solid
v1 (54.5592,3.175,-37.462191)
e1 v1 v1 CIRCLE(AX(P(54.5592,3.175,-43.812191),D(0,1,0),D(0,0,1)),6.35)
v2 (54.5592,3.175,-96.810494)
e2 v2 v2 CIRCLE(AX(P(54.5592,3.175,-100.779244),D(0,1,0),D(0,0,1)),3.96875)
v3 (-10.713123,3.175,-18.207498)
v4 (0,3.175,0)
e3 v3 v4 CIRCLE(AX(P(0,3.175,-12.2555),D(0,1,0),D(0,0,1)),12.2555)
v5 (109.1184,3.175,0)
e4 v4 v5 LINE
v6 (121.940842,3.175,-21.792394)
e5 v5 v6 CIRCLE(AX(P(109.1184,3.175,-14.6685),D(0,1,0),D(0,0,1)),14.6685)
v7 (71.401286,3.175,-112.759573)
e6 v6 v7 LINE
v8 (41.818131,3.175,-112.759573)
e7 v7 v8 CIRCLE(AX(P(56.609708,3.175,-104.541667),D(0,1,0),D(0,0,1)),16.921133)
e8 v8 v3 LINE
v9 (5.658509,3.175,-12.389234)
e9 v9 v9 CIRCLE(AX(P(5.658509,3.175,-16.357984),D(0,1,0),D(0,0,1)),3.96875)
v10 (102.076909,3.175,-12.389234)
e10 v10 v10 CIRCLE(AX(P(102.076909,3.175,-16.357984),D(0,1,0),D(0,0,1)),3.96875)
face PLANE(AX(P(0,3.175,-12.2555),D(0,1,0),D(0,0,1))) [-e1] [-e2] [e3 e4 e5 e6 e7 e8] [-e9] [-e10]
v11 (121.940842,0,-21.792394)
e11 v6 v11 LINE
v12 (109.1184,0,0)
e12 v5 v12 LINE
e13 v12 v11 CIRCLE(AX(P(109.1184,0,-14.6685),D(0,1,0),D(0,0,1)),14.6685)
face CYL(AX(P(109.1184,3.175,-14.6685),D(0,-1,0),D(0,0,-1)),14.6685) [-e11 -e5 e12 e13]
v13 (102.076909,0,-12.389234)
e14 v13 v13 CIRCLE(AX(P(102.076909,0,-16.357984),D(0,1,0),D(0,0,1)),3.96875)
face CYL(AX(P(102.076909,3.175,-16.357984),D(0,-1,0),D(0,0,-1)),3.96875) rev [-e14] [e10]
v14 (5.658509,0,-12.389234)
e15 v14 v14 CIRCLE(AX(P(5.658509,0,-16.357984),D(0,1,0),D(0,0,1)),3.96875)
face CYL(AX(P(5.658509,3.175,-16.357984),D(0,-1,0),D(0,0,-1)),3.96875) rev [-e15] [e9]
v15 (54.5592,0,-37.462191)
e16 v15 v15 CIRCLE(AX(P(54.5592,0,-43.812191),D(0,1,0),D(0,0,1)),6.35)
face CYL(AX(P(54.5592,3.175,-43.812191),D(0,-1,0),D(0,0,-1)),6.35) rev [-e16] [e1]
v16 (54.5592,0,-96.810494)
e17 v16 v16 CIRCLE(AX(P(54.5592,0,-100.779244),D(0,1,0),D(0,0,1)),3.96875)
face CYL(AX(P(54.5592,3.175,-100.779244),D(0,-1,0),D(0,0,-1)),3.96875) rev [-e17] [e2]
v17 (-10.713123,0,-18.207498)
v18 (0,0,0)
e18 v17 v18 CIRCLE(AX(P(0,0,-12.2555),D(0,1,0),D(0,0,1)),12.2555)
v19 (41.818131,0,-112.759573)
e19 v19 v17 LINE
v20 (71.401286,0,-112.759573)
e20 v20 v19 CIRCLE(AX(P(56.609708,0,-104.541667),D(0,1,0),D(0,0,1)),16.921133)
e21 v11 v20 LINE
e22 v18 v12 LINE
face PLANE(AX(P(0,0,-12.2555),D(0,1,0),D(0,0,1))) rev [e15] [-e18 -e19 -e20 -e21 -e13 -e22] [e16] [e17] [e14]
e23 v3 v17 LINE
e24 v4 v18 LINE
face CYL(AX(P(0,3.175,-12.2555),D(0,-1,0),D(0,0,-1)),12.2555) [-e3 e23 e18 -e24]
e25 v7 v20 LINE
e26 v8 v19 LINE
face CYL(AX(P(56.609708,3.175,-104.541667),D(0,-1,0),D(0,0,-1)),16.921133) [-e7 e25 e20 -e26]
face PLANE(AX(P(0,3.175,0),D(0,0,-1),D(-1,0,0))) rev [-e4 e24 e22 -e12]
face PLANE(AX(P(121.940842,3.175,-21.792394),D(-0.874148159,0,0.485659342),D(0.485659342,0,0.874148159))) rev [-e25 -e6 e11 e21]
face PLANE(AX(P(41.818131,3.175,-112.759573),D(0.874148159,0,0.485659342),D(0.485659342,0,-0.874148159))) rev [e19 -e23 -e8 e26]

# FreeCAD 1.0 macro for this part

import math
import FreeCAD as App
import Part
import Sketcher
from FreeCAD import Vector
Q = App.Units.Quantity

doc = App.newDocument("Part")
params = doc.addObject("Spreadsheet::Sheet", "Params")
for row, (alias, value) in enumerate([
    ("sketch1_diameter", "0.5 in"),
    ("sketch1_diameter2", "0.3125 in"),
    ("sketch1_width", "4.296 in"),
    ("sketch1_length", "4.097 in"),
    ("pad1_length", "0.125 in"),
], start=1):
    params.set(f"A{row}", alias)
    params.set(f"B{row}", "=" + value)
    params.setAlias(f"B{row}", alias)

body = doc.addObject("PartDesign::Body", "Body")

# Sketch on XZ plane
sketch1 = body.newObject("Sketcher::SketchObject", "Sketch")
sketch1.AttachmentSupport = (doc.getObject("XZ_Plane"), [""])
sketch1.MapMode = "FlatFace"
sketch1.addGeometry([
    Part.LineSegment(Vector(0, 0, 0), Vector(109.1, 0, 0)),  # 0
    Part.ArcOfCircle(Part.Circle(Vector(109.1, -14.7, 0), Vector(0, 0, 1), 14.7), math.radians(-29), math.radians(90)),  # 1
    Part.LineSegment(Vector(121.9, -21.8, 0), Vector(71.4, -112.8, 0)),  # 2
    Part.ArcOfCircle(Part.Circle(Vector(56.6, -104.5, 0), Vector(0, 0, 1), 16.9), math.radians(-151), math.radians(-29)),  # 3
    Part.LineSegment(Vector(41.8, -112.8, 0), Vector(-10.7, -18.2, 0)),  # 4
    Part.ArcOfCircle(Part.Circle(Vector(0, -12.3, 0), Vector(0, 0, 1), 12.3), math.radians(90), math.radians(209)),  # 5
    Part.Circle(Vector(5.7, -16.4, 0), Vector(0, 0, 1), 4),  # 6
    Part.Circle(Vector(102.1, -16.4, 0), Vector(0, 0, 1), 4),  # 7
    Part.Circle(Vector(54.6, -43.8, 0), Vector(0, 0, 1), 6.3),  # 8
    Part.Circle(Vector(54.6, -100.8, 0), Vector(0, 0, 1), 4),  # 9
], False)
sketch1.addConstraint([
    Sketcher.Constraint("Tangent", 0, 2, 1, 2),
    Sketcher.Constraint("Tangent", 1, 1, 2, 1),
    Sketcher.Constraint("Tangent", 2, 2, 3, 2),
    Sketcher.Constraint("Tangent", 3, 1, 4, 1),
    Sketcher.Constraint("Tangent", 4, 2, 5, 2),
    Sketcher.Constraint("Tangent", 5, 1, 0, 1),
    Sketcher.Constraint("Horizontal", 0),
    Sketcher.Constraint("Coincident", 5, 1, -1, 1),
    Sketcher.Constraint("Equal", 6, 7),
    Sketcher.Constraint("Equal", 7, 9),
    Sketcher.Constraint("Horizontal", 6, 3, 7, 3),
    Sketcher.Constraint("Horizontal", 2, 2, 3, 1),
    Sketcher.Constraint("Vertical", 8, 3, 9, 3),
    Sketcher.Constraint("Diameter", 8, Q("0.5 in")),
    Sketcher.Constraint("Diameter", 6, Q("0.3125 in")),
    Sketcher.Constraint("Radius", 1, Q("0.5775 in")),
    Sketcher.Constraint("Radius", 5, Q("0.4825 in")),
    Sketcher.Constraint("DistanceX", 0, 1, 0, 2, Q("4.296 in")),
    Sketcher.Constraint("Distance", 2, Q("4.097 in")),
    Sketcher.Constraint("DistanceX", -1, 1, 8, 3, Q("2.148 in")),
    Sketcher.Constraint("DistanceX", 6, 3, 7, 3, Q("3.796 in")),
    Sketcher.Constraint("Radius", 3, Q("16.921133 mm")),
    Sketcher.Constraint("DistanceX", 6, 3, 3, 3, Q("50.951199 mm")),
    Sketcher.Constraint("DistanceY", 8, 3, -1, 1, Q("43.812191 mm")),
    Sketcher.Constraint("DistanceY", 9, 3, 7, 3, Q("84.42126 mm")),
    Sketcher.Constraint("DistanceY", 1, 1, 7, 3, Q("5.434411 mm")),
])
sketch1.setExpression("Constraints[13]", "Params.sketch1_diameter")
sketch1.setExpression("Constraints[14]", "Params.sketch1_diameter2")
sketch1.setExpression("Constraints[17]", "Params.sketch1_width")
sketch1.setExpression("Constraints[18]", "Params.sketch1_length")
pad1 = body.newObject("PartDesign::Pad", "Pad")
pad1.Profile = sketch1
pad1.setExpression("Length", "Params.pad1_length")
pad1.Reversed = True

doc.recompute()
